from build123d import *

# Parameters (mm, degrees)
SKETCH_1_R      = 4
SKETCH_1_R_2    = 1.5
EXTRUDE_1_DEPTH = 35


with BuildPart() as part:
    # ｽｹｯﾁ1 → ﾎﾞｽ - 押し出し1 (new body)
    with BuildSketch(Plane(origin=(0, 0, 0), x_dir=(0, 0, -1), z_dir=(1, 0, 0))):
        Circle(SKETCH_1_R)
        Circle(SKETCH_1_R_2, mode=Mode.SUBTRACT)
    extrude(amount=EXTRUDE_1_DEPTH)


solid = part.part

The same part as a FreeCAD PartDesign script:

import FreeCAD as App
import Part
import Sketcher
from FreeCAD import Vector
Q = App.Units.Quantity

doc = App.newDocument("Part")
body = doc.addObject("PartDesign::Body", "Body")

sketch1 = body.newObject("Sketcher::SketchObject", "Sketch")
sketch1.AttachmentSupport = (doc.getObject("YZ_Plane"), [""])
sketch1.MapMode = "FlatFace"
sketch1.addGeometry([
    Part.Circle(Vector(0, 0, 0), Vector(0, 0, 1), 4),
    Part.Circle(Vector(0, 0, 0), Vector(0, 0, 1), 1.5),
], False)
sketch1.addConstraint([
    Sketcher.Constraint("Coincident", 0, 3, -1, 1),
    Sketcher.Constraint("Coincident", 1, 3, -1, 1),
    Sketcher.Constraint("Diameter", 0, Q("8 mm")),
    Sketcher.Constraint("Diameter", 1, Q("3 mm")),
])
pad1 = body.newObject("PartDesign::Pad", "Pad")
pad1.Profile = sketch1
pad1.Length = 35

doc.recompute()
